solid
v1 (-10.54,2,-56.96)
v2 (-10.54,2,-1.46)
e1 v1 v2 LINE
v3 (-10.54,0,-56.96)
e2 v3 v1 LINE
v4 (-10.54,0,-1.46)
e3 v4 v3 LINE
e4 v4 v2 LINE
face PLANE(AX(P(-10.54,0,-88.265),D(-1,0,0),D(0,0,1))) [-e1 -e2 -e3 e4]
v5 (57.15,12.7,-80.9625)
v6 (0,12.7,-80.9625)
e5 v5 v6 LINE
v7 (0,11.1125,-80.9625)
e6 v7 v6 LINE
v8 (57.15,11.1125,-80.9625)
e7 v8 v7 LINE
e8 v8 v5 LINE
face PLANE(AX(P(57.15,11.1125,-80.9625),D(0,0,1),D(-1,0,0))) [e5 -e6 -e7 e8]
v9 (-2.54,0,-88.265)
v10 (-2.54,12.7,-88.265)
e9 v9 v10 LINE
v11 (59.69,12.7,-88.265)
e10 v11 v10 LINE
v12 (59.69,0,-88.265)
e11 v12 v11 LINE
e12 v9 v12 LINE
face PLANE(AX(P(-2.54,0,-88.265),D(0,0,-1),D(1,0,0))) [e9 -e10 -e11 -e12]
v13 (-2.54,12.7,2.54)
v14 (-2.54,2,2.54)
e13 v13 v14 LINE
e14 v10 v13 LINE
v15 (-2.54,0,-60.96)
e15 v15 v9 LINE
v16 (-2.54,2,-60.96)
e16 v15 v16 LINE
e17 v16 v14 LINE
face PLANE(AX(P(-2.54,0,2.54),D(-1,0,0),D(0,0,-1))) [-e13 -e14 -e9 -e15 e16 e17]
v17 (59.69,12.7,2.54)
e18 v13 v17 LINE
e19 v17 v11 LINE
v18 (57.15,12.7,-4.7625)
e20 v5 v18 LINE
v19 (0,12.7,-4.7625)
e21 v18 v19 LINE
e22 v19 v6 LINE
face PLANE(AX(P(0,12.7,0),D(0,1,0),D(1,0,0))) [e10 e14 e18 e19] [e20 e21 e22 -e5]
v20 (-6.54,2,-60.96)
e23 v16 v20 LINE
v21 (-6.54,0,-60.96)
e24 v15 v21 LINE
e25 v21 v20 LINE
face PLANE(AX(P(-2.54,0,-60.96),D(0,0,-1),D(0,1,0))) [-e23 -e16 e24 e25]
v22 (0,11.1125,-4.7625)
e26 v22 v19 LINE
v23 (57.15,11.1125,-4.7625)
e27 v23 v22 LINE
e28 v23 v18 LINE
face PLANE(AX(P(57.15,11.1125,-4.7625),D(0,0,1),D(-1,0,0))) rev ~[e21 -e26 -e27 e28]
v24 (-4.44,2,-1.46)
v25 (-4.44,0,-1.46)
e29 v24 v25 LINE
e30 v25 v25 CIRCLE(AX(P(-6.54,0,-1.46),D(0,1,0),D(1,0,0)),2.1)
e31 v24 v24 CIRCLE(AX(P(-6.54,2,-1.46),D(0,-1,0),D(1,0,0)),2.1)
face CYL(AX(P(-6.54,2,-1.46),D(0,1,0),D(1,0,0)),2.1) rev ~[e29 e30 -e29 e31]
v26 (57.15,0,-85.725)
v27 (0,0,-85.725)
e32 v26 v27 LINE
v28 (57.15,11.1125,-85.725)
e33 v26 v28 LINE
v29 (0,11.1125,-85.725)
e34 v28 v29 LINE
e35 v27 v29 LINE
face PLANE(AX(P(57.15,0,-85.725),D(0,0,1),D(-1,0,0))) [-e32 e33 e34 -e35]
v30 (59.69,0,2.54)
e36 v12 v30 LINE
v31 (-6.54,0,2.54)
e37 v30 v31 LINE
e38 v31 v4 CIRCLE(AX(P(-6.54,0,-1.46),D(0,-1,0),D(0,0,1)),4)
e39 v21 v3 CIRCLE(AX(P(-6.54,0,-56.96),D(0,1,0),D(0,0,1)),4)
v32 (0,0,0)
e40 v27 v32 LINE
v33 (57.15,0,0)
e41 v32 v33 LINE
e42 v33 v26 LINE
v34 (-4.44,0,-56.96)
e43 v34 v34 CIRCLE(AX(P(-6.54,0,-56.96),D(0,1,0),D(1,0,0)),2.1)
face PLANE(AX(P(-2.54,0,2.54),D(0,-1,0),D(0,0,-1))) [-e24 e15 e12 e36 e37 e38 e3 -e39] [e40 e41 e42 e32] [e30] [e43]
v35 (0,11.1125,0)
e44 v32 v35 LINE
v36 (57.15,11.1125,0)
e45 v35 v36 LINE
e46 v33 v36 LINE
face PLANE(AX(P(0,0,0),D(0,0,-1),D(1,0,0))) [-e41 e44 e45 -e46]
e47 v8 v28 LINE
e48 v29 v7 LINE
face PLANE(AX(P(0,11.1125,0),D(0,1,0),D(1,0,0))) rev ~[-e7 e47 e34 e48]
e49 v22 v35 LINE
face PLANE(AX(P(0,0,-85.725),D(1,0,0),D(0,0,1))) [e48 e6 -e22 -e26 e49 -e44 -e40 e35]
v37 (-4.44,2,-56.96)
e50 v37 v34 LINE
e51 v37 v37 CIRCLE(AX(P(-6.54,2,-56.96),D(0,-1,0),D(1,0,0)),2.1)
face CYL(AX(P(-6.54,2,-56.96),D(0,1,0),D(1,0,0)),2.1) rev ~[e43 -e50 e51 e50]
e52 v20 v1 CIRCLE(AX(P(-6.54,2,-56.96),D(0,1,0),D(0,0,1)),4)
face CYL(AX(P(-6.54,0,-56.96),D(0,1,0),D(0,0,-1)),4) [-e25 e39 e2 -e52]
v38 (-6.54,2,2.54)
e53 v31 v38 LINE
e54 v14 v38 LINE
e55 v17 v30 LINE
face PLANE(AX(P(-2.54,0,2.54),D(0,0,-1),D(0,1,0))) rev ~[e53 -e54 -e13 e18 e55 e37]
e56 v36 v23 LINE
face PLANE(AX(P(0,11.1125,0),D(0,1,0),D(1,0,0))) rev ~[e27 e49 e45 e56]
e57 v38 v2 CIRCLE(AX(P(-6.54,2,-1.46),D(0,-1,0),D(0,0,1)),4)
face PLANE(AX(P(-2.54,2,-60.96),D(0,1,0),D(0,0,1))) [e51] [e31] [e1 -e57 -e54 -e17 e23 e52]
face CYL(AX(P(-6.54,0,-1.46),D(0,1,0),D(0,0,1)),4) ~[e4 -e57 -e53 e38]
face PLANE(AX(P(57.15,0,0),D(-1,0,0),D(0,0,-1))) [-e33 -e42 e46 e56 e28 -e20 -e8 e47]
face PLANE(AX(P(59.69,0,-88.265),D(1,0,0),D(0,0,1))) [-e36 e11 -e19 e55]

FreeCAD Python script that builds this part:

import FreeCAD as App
import Part
import Sketcher
from FreeCAD import Vector
Q = App.Units.Quantity


def edges_at(feature, points):
    """Names of the edges that pass closest to the given points."""
    edges = feature.Shape.Edges
    near = lambda p: min(range(len(edges)), key=lambda i: edges[i].distToShape(Part.Vertex(*p))[0])
    return sorted({f"Edge{near(p) + 1}" for p in points})

doc = App.newDocument("Part")
body = doc.addObject("PartDesign::Body", "Body")

# Sketch on XZ plane
sketch1 = body.newObject("Sketcher::SketchObject", "Sketch")
sketch1.AttachmentSupport = (doc.getObject("XZ_Plane"), [""])
sketch1.MapMode = "FlatFace"
sketch1.addGeometry([
    Part.LineSegment(Vector(60, 3, 0), Vector(60, -88, 0)),  # 0
    Part.LineSegment(Vector(60, -88, 0), Vector(-3, -88, 0)),  # 1
    Part.LineSegment(Vector(-3, -88, 0), Vector(-3, 3, 0)),  # 2
    Part.LineSegment(Vector(-3, 3, 0), Vector(60, 3, 0)),  # 3
    Part.LineSegment(Vector(57, 0, 0), Vector(0, 0, 0)),  # 4
    Part.LineSegment(Vector(0, 0, 0), Vector(0, -86, 0)),  # 5
    Part.LineSegment(Vector(0, -86, 0), Vector(57, -86, 0)),  # 6
    Part.LineSegment(Vector(57, -86, 0), Vector(57, 0, 0)),  # 7
], False)
sketch1.addConstraint([
    Sketcher.Constraint("Coincident", 0, 2, 1, 1),
    Sketcher.Constraint("Coincident", 1, 2, 2, 1),
    Sketcher.Constraint("Coincident", 2, 2, 3, 1),
    Sketcher.Constraint("Coincident", 3, 2, 0, 1),
    Sketcher.Constraint("Coincident", 4, 2, 5, 1),
    Sketcher.Constraint("Coincident", 5, 2, 6, 1),
    Sketcher.Constraint("Coincident", 6, 2, 7, 1),
    Sketcher.Constraint("Coincident", 7, 2, 4, 1),
    Sketcher.Constraint("Vertical", 0),
    Sketcher.Constraint("Horizontal", 1),
    Sketcher.Constraint("Vertical", 2),
    Sketcher.Constraint("Horizontal", 3),
    Sketcher.Constraint("Horizontal", 4),
    Sketcher.Constraint("Vertical", 5),
    Sketcher.Constraint("Horizontal", 6),
    Sketcher.Constraint("Vertical", 7),
    Sketcher.Constraint("Coincident", 4, 2, -1, 1),
    Sketcher.Constraint("DistanceX", 4, 2, 4, 1, Q("2.25 in")),
    Sketcher.Constraint("DistanceX", 1, 2, -1, 1, Q("0.1 in")),
    Sketcher.Constraint("DistanceY", -1, 1, 2, 2, Q("0.1 in")),
    Sketcher.Constraint("DistanceY", 1, 2, 5, 2, Q("0.1 in")),
    Sketcher.Constraint("DistanceX", 6, 2, 0, 2, Q("0.1 in")),
    Sketcher.Constraint("DistanceY", 5, 2, 5, 1, Q("3.375 in")),
])
pad1 = body.newObject("PartDesign::Pad", "Pad")
pad1.Profile = sketch1
pad1.Length = Q("0.4375 in")
pad1.Reversed = True

# Sketch on XZ plane
sketch2 = body.newObject("Sketcher::SketchObject", "Sketch001")
sketch2.AttachmentSupport = (doc.getObject("XZ_Plane"), [""])
sketch2.MapMode = "FlatFace"
sketch2.AttachmentOffset = App.Placement(Vector(0, 0, -0.4375 * 25.4), App.Rotation())
sketch2.addGeometry([
    Part.LineSegment(Vector(60, 3, 0), Vector(60, -88, 0)),  # 0
    Part.LineSegment(Vector(60, -88, 0), Vector(-3, -88, 0)),  # 1
    Part.LineSegment(Vector(-3, -88, 0), Vector(-3, 3, 0)),  # 2
    Part.LineSegment(Vector(-3, 3, 0), Vector(60, 3, 0)),  # 3
    Part.LineSegment(Vector(57, -5, 0), Vector(0, -5, 0)),  # 4
    Part.LineSegment(Vector(0, -5, 0), Vector(0, -81, 0)),  # 5
    Part.LineSegment(Vector(0, -81, 0), Vector(57, -81, 0)),  # 6
    Part.LineSegment(Vector(57, -81, 0), Vector(57, -5, 0)),  # 7
], False)
sketch2.addConstraint([
    Sketcher.Constraint("Coincident", 0, 2, 1, 1),
    Sketcher.Constraint("Coincident", 1, 2, 2, 1),
    Sketcher.Constraint("Coincident", 2, 2, 3, 1),
    Sketcher.Constraint("Coincident", 3, 2, 0, 1),
    Sketcher.Constraint("Coincident", 4, 2, 5, 1),
    Sketcher.Constraint("Coincident", 5, 2, 6, 1),
    Sketcher.Constraint("Coincident", 6, 2, 7, 1),
    Sketcher.Constraint("Coincident", 7, 2, 4, 1),
    Sketcher.Constraint("Vertical", 0),
    Sketcher.Constraint("Horizontal", 1),
    Sketcher.Constraint("Vertical", 2),
    Sketcher.Constraint("Horizontal", 3),
    Sketcher.Constraint("Horizontal", 4),
    Sketcher.Constraint("Vertical", 5),
    Sketcher.Constraint("Horizontal", 6),
    Sketcher.Constraint("Vertical", 7),
    Sketcher.Constraint("PointOnObject", 4, 2, -2),
    Sketcher.Constraint("DistanceY", 5, 2, 5, 1, Q("3 in")),
    Sketcher.Constraint("DistanceY", 4, 2, -1, 1, Q("0.1875 in")),
    Sketcher.Constraint("DistanceX", 1, 2, 1, 1, Q("2.45 in")),
    Sketcher.Constraint("DistanceX", 4, 2, 4, 1, Q("2.25 in")),
    Sketcher.Constraint("DistanceX", 1, 2, -1, 1, Q("0.1 in")),
    Sketcher.Constraint("DistanceY", -1, 1, 2, 2, Q("0.1 in")),
    Sketcher.Constraint("DistanceY", 0, 2, 0, 1, Q("3.575 in")),
])
pad2 = body.newObject("PartDesign::Pad", "Pad001")
pad2.Profile = sketch2
pad2.Length = Q("0.0625 in")
pad2.Reversed = True

# Sketch on YZ plane
sketch3 = body.newObject("Sketcher::SketchObject", "Sketch002")
sketch3.AttachmentSupport = (doc.getObject("YZ_Plane"), [""])
sketch3.MapMode = "FlatFace"
sketch3.AttachmentOffset = App.Placement(Vector(0, 0, -0.1 * 25.4), App.Rotation())
sketch3.addGeometry([
    Part.LineSegment(Vector(0, -61, 0), Vector(0, 2.5, 0)),
    Part.LineSegment(Vector(0, 2.5, 0), Vector(2, 2.5, 0)),
    Part.LineSegment(Vector(2, 2.5, 0), Vector(2, -61, 0)),
    Part.LineSegment(Vector(2, -61, 0), Vector(0, -61, 0)),
], False)
sketch3.addConstraint([
    Sketcher.Constraint("Coincident", 0, 2, 1, 1),
    Sketcher.Constraint("Coincident", 1, 2, 2, 1),
    Sketcher.Constraint("Coincident", 2, 2, 3, 1),
    Sketcher.Constraint("Coincident", 3, 2, 0, 1),
    Sketcher.Constraint("Vertical", 0),
    Sketcher.Constraint("Horizontal", 1),
    Sketcher.Constraint("Vertical", 2),
    Sketcher.Constraint("Horizontal", 3),
    Sketcher.Constraint("PointOnObject", 0, 2, -2),
    Sketcher.Constraint("DistanceY", 0, 1, 0, 2, Q("2.5 in")),
    Sketcher.Constraint("DistanceX", 1, 1, 1, 2, Q("2 mm")),
    Sketcher.Constraint("DistanceY", -1, 1, 0, 2, Q("0.1 in")),
])
pad3 = body.newObject("PartDesign::Pad", "Pad002")
pad3.Profile = sketch3
pad3.Length = 8
pad3.Reversed = True
doc.recompute()

fillet = body.newObject("PartDesign::Fillet", "Fillet")
fillet.Base = (pad3, edges_at(pad3, [(-10.54, 1, 2.54), (-10.54, 1, -60.96)]))
fillet.Radius = 4

# Sketch on XZ plane
sketch4 = body.newObject("Sketcher::SketchObject", "Sketch003")
sketch4.AttachmentSupport = (doc.getObject("XZ_Plane"), [""])
sketch4.MapMode = "FlatFace"
sketch4.AttachmentOffset = App.Placement(Vector(0, 0, -2), App.Rotation())
sketch4.addGeometry([
    Part.Circle(Vector(-6.5, -1.5, 0), Vector(0, 0, 1), 2.1),
    Part.Circle(Vector(-6.5, -57, 0), Vector(0, 0, 1), 2.1),
], False)
sketch4.addConstraint([
    Sketcher.Constraint("Equal", 0, 1),
    Sketcher.Constraint("Vertical", 0, 3, 1, 3),
    Sketcher.Constraint("Diameter", 0, Q("4.2 mm")),
    Sketcher.Constraint("DistanceX", 0, 3, -1, 1, Q("6.54 mm")),
    Sketcher.Constraint("DistanceY", 0, 3, -1, 1, Q("1.46 mm")),
    Sketcher.Constraint("DistanceY", 1, 3, -1, 1, Q("56.96 mm")),
])
pocket1 = body.newObject("PartDesign::Pocket", "Pocket")
pocket1.Profile = sketch4
pocket1.Type = "UpToFirst"
pocket1.Reversed = True

doc.recompute()
